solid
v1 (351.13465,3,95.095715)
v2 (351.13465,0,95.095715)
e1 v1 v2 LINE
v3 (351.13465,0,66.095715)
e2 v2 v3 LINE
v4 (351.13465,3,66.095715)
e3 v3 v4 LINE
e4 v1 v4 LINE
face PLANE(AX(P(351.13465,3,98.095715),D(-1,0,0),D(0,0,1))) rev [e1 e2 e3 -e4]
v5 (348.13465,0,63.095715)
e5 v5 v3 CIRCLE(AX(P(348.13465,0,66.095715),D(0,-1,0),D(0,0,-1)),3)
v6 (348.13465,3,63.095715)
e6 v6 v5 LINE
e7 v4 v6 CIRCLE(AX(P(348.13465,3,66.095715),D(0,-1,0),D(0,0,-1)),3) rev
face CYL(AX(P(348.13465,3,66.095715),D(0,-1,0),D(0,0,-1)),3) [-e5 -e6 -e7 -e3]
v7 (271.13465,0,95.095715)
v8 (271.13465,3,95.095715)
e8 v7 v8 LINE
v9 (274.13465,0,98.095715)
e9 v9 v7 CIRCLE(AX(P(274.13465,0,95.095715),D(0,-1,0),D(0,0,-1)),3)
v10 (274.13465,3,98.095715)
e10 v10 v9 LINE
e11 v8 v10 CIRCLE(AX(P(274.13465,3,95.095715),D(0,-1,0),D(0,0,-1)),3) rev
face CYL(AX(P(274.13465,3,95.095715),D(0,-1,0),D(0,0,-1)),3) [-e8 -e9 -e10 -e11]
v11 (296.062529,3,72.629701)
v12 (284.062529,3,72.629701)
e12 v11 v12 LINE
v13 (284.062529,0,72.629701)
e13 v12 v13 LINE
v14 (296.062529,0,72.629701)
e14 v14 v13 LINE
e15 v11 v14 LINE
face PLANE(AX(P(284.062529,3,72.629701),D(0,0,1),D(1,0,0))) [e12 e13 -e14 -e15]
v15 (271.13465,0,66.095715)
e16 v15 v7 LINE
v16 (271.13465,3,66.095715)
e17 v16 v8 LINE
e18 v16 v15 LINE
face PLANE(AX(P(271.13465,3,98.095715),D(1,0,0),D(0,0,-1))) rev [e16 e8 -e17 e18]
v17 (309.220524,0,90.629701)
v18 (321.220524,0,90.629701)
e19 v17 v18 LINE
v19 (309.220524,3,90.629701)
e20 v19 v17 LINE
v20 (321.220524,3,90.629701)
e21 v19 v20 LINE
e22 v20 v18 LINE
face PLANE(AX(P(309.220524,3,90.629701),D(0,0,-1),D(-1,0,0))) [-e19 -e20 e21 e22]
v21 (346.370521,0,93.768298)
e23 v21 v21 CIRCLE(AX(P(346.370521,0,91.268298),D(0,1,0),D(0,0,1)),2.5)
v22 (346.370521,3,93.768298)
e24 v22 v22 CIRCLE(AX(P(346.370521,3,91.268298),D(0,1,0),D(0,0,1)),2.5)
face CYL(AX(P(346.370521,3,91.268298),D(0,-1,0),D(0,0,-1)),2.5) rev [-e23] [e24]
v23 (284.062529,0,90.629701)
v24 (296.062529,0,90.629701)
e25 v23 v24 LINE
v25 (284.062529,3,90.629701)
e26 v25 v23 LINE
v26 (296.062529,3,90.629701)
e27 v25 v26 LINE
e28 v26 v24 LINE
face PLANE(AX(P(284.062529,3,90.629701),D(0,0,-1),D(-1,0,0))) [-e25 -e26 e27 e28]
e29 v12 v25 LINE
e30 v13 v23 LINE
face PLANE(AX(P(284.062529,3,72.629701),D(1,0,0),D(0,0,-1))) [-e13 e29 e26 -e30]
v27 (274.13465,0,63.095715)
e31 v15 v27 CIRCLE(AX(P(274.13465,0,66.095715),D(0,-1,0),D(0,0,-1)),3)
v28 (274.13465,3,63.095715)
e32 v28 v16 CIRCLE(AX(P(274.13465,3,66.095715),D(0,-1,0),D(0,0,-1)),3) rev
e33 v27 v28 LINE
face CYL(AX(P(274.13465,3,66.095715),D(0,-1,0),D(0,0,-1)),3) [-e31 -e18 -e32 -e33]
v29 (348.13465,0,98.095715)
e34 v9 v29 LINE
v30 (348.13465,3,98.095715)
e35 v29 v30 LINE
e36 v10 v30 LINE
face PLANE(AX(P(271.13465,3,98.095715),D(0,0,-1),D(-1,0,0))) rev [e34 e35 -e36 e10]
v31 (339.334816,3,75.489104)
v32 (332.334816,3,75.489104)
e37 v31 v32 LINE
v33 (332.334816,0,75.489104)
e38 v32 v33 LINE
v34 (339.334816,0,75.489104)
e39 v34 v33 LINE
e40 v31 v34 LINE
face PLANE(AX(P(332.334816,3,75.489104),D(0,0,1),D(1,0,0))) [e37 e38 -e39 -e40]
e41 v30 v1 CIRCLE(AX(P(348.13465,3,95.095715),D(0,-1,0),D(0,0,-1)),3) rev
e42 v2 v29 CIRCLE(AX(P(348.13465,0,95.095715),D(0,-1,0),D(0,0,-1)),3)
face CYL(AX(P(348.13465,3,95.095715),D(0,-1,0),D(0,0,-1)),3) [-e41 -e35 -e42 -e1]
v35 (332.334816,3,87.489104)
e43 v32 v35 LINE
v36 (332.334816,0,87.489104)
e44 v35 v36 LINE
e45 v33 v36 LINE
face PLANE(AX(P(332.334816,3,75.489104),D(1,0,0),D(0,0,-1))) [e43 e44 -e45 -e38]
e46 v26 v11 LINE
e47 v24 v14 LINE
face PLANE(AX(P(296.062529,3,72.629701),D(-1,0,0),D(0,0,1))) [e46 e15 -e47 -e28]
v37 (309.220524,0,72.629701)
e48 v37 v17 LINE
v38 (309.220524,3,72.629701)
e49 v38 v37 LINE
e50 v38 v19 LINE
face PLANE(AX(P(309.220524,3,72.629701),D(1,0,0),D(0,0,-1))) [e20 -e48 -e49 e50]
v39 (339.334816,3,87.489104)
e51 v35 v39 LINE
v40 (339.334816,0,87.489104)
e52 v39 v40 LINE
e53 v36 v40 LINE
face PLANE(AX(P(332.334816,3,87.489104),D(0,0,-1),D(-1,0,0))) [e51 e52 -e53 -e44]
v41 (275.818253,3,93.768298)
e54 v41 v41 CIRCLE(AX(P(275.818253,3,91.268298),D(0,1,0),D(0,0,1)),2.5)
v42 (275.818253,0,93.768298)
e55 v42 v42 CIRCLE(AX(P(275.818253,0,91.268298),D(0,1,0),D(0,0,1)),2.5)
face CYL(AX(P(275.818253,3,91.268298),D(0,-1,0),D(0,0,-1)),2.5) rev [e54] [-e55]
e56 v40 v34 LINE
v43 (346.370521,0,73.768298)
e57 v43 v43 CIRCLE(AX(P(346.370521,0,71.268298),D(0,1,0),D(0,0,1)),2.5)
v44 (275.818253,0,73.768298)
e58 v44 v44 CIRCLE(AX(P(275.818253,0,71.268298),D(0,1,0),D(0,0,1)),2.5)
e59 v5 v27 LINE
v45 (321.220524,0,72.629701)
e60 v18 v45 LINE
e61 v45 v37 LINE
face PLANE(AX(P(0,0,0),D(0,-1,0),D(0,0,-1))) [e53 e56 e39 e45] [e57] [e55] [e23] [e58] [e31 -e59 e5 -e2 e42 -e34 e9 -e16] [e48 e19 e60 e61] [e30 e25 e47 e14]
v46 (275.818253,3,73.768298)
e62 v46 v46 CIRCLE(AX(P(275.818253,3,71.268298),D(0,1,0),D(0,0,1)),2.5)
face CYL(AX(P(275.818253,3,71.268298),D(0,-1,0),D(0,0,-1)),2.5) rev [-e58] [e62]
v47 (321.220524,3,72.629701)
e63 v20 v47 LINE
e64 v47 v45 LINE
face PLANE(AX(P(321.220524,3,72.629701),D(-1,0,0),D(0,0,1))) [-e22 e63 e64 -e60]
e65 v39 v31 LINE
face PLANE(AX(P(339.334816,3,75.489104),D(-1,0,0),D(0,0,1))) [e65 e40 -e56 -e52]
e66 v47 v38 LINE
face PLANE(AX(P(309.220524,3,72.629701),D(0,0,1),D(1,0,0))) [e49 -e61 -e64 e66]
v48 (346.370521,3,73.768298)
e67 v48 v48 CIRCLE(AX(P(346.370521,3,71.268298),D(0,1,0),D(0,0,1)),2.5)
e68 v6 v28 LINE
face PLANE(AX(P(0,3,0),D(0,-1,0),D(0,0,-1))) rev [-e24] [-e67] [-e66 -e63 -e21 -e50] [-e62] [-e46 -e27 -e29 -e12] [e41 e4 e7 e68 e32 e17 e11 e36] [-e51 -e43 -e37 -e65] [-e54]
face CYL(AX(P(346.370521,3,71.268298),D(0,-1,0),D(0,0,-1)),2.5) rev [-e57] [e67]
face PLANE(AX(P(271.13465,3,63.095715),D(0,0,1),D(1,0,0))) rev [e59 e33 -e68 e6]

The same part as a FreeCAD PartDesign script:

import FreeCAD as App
import Part
import Sketcher
from FreeCAD import Vector
Q = App.Units.Quantity


def edges_at(feature, points):
    """Names of the edges that pass closest to the given points."""
    edges = feature.Shape.Edges
    near = lambda p: min(range(len(edges)), key=lambda i: edges[i].distToShape(Part.Vertex(*p))[0])
    return sorted({f"Edge{near(p) + 1}" for p in points})


def add_polygon(sketch, points):
    """Adds a closed chain of lines whose ends are joined by coincident constraints."""
    first, n = sketch.GeometryCount, len(points)
    for a, b in zip(points, points[1:] + points[:1]):
        sketch.addGeometry(Part.LineSegment(App.Vector(*a, 0), App.Vector(*b, 0)), False)
    for i in range(n):
        sketch.addConstraint(Sketcher.Constraint("Coincident", first + i, 2, first + (i + 1) % n, 1))

doc = App.newDocument("Part")
body = doc.addObject("PartDesign::Body", "Body")

sketch1 = body.newObject("Sketcher::SketchObject", "Sketch")
sketch1.AttachmentSupport = (doc.getObject("XZ_Plane"), [""])
sketch1.MapMode = "FlatFace"
add_polygon(sketch1, [(271.1, 63.1), (271.1, 98.1), (351.1, 98.1), (351.1, 63.1)])
sketch1.addGeometry(Part.Circle(Vector(275.8, 91.3, 0), Vector(0, 0, 1), 2.5), False)
add_polygon(sketch1, [(296.1, 90.6), (284.1, 90.6), (284.1, 72.6), (296.1, 72.6)])
sketch1.addGeometry(Part.Circle(Vector(346.4, 91.3, 0), Vector(0, 0, 1), 2.5), False)
add_polygon(sketch1, [(321.2, 90.6), (309.2, 90.6), (309.2, 72.6), (321.2, 72.6)])
add_polygon(sketch1, [(339.3, 87.5), (332.3, 87.5), (332.3, 75.5), (339.3, 75.5)])
sketch1.addGeometry(Part.Circle(Vector(275.8, 71.3, 0), Vector(0, 0, 1), 2.5), False)
sketch1.addGeometry(Part.Circle(Vector(346.4, 71.3, 0), Vector(0, 0, 1), 2.5), False)
sketch1.addConstraint([
    Sketcher.Constraint("Vertical", 0),
    Sketcher.Constraint("Horizontal", 1),
    Sketcher.Constraint("Vertical", 2),
    Sketcher.Constraint("Horizontal", 3),
    Sketcher.Constraint("Horizontal", 5),
    Sketcher.Constraint("Vertical", 6),
    Sketcher.Constraint("Horizontal", 7),
    Sketcher.Constraint("Vertical", 8),
    Sketcher.Constraint("Horizontal", 10),
    Sketcher.Constraint("Vertical", 11),
    Sketcher.Constraint("Horizontal", 12),
    Sketcher.Constraint("Vertical", 13),
    Sketcher.Constraint("Horizontal", 14),
    Sketcher.Constraint("Vertical", 15),
    Sketcher.Constraint("Horizontal", 16),
    Sketcher.Constraint("Vertical", 17),
    Sketcher.Constraint("Equal", 4, 9),
    Sketcher.Constraint("Equal", 9, 18),
    Sketcher.Constraint("Equal", 18, 19),
    Sketcher.Constraint("Horizontal", 4, 3, 9, 3),
    Sketcher.Constraint("Horizontal", 18, 3, 19, 3),
    Sketcher.Constraint("Horizontal", 8, 2, 10, 2),
    Sketcher.Constraint("Horizontal", 7, 2, 11, 2),
    Sketcher.Constraint("Vertical", 4, 3, 18, 3),
    Sketcher.Constraint("Vertical", 9, 3, 19, 3),
    Sketcher.Constraint("Equal", 7, 10),
    Sketcher.Constraint("Equal", 12, 15),
    Sketcher.Constraint("Diameter", 4, Q("5 mm")),
    Sketcher.Constraint("DistanceX", 1, 1, 1, 2, Q("80 mm")),
    Sketcher.Constraint("DistanceX", 5, 2, 5, 1, Q("12 mm")),
    Sketcher.Constraint("DistanceX", 14, 2, 14, 1, Q("7 mm")),
    Sketcher.Constraint("DistanceY", 0, 1, 0, 2, Q("35 mm")),
    Sketcher.Constraint("DistanceY", 6, 2, 6, 1, Q("18 mm")),
    Sketcher.Constraint("DistanceY", 18, 3, 4, 3, Q("20 mm")),
    Sketcher.Constraint("DistanceY", -1, 1, 5, 2, Q("90.629701 mm")),
    Sketcher.Constraint("DistanceX", -1, 1, 9, 3, Q("346.370521 mm")),
    Sketcher.Constraint("DistanceX", -1, 1, 0, 2, Q("271.13465 mm")),
    Sketcher.Constraint("DistanceX", -1, 1, 5, 2, Q("284.062529 mm")),
    Sketcher.Constraint("DistanceX", 4, 3, 9, 3, Q("70.552268 mm")),
    Sketcher.Constraint("DistanceX", 4, 3, 10, 2, Q("33.402271 mm")),
    Sketcher.Constraint("DistanceX", 13, 2, 14, 2, Q("11.114292 mm")),
    Sketcher.Constraint("DistanceY", 14, 2, 1, 2, Q("10.606612 mm")),
    Sketcher.Constraint("DistanceY", -1, 1, 4, 3, Q("91.268298 mm")),
    Sketcher.Constraint("DistanceY", -1, 1, 0, 2, Q("98.095715 mm")),
])
pad1 = body.newObject("PartDesign::Pad", "Pad")
pad1.Profile = sketch1
pad1.Length = 3
pad1.Reversed = True
doc.recompute()

fillet = body.newObject("PartDesign::Fillet", "Fillet")
fillet.Base = (pad1, edges_at(pad1, [
    (271.135, 1.5, 63.096),
    (351.135, 1.5, 63.096),
    (351.135, 1.5, 98.096),
    (271.135, 1.5, 98.096),
]))
fillet.Radius = 3

doc.recompute()
